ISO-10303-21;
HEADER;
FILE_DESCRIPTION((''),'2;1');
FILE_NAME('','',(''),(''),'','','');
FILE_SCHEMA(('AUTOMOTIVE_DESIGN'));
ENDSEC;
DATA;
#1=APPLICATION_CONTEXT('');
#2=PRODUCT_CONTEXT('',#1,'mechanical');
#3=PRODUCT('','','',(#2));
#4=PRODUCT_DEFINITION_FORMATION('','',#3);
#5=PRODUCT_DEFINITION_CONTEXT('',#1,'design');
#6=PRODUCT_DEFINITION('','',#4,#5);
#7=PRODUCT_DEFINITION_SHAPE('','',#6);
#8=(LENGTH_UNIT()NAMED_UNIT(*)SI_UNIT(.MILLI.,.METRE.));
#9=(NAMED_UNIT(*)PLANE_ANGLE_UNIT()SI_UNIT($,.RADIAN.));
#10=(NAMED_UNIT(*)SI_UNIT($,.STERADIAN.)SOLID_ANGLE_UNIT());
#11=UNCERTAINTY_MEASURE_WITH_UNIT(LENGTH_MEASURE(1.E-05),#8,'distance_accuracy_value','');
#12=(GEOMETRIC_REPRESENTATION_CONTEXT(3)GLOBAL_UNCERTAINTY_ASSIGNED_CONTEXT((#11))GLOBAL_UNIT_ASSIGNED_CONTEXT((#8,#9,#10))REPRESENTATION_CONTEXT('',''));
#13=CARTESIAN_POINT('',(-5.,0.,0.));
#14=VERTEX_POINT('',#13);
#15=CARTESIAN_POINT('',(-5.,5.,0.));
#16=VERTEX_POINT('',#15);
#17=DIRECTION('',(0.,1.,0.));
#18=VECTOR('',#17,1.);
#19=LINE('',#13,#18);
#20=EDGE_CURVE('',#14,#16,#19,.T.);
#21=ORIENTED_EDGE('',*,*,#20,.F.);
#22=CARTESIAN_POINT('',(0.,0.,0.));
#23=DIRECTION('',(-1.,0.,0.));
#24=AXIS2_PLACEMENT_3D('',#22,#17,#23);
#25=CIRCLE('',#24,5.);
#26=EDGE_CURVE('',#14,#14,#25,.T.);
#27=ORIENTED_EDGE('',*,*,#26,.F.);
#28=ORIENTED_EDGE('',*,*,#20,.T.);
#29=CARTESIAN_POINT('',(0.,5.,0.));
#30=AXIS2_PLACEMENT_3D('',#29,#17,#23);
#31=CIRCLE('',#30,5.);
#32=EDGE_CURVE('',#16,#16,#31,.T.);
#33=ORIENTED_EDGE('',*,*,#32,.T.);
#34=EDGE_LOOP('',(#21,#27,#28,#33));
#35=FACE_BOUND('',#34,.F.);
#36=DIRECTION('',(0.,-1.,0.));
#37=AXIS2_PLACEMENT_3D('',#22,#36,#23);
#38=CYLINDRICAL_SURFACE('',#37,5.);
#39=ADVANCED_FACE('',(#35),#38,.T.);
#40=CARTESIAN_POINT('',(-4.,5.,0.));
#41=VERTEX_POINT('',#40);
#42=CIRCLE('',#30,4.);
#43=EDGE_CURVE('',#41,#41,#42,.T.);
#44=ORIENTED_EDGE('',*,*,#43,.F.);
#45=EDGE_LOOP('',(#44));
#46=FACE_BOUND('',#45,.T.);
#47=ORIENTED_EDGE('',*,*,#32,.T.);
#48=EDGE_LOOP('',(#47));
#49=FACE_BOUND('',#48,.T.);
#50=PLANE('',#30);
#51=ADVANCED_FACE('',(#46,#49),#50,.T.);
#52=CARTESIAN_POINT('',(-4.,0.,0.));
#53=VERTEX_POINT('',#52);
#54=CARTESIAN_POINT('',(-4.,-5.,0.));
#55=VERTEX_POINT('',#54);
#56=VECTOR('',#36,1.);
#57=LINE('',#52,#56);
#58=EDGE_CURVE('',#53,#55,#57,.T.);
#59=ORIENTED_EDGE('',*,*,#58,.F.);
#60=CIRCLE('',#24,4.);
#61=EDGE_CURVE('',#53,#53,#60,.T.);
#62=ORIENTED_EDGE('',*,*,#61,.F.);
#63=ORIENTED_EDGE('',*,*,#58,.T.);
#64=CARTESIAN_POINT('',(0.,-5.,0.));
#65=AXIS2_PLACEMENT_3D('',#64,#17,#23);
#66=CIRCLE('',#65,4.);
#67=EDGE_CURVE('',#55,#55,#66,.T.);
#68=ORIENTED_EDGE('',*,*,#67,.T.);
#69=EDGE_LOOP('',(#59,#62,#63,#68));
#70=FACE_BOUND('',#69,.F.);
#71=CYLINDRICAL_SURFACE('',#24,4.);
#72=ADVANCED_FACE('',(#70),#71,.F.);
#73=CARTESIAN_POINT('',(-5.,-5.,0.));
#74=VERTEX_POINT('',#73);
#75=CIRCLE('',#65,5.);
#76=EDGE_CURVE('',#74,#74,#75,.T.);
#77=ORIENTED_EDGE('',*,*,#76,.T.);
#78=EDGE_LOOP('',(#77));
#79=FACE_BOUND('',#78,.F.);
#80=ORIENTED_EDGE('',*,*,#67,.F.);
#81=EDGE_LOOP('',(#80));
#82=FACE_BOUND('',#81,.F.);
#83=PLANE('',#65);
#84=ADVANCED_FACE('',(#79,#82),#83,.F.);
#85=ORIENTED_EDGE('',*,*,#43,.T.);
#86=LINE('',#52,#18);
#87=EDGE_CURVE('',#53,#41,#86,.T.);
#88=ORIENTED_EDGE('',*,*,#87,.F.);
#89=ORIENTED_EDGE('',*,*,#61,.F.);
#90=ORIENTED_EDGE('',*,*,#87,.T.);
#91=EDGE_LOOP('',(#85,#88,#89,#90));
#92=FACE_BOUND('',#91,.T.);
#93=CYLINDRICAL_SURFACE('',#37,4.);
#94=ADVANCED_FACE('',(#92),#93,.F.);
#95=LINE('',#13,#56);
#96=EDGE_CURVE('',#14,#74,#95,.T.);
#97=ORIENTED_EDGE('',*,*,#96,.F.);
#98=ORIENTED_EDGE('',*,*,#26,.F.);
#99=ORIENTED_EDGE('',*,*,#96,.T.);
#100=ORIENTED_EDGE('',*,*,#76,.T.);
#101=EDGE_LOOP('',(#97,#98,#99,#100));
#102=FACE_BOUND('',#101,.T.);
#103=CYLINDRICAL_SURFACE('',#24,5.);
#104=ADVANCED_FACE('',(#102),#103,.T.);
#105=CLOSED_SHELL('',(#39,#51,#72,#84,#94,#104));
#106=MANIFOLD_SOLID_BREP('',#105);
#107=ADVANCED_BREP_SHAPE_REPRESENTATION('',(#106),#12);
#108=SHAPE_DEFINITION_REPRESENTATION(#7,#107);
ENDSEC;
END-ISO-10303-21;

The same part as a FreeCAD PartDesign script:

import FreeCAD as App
import Part
import Sketcher
from FreeCAD import Vector
Q = App.Units.Quantity

doc = App.newDocument("Part")
params = doc.addObject("Spreadsheet::Sheet", "Params")
for row, (alias, value) in enumerate([
    ("sketch1_diameter", "10 mm"),
    ("sketch1_diameter2", "8 mm"),
    ("pad1_length", "10 mm"),
], start=1):
    params.set(f"A{row}", alias)
    params.set(f"B{row}", "=" + value)
    params.setAlias(f"B{row}", alias)

body = doc.addObject("PartDesign::Body", "Body")

# Sketch on XZ plane
sketch1 = body.newObject("Sketcher::SketchObject", "Sketch")
sketch1.AttachmentSupport = (doc.getObject("XZ_Plane"), [""])
sketch1.MapMode = "FlatFace"
sketch1.addGeometry(Part.Circle(Vector(0, 0, 0), Vector(0, 0, 1), 5), False)
sketch1.addGeometry(Part.Circle(Vector(0, 0, 0), Vector(0, 0, 1), 4), False)
sketch1.addConstraint(Sketcher.Constraint("Coincident", 0, 3, -1, 1))
sketch1.addConstraint(Sketcher.Constraint("Coincident", 1, 3, -1, 1))
sketch1.addConstraint(Sketcher.Constraint("Diameter", 0, Q("10 mm")))
sketch1.addConstraint(Sketcher.Constraint("Diameter", 1, Q("8 mm")))
sketch1.setExpression("Constraints[2]", "Params.sketch1_diameter")
sketch1.setExpression("Constraints[3]", "Params.sketch1_diameter2")
pad1 = body.newObject("PartDesign::Pad", "Pad")
pad1.Profile = sketch1
pad1.setExpression("Length", "Params.pad1_length")
pad1.Midplane = True

doc.recompute()
